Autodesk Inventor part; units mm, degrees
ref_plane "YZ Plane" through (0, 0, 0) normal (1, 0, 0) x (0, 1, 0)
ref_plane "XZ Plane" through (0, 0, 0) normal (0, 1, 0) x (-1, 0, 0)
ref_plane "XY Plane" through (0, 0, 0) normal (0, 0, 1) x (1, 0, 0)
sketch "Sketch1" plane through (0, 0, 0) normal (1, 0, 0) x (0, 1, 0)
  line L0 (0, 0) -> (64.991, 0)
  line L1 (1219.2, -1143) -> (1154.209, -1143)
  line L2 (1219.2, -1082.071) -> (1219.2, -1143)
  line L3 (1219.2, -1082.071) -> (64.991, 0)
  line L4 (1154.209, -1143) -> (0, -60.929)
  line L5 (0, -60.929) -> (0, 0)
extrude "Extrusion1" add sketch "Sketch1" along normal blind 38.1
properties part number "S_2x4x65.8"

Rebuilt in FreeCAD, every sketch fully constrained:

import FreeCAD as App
import Part
import Sketcher
Q = App.Units.Quantity

doc = App.newDocument("Part")
body = doc.addObject("PartDesign::Body", "Body")

# Sketch on YZ plane
sketch1 = body.newObject("Sketcher::SketchObject", "Sketch")
sketch1.AttachmentSupport = (doc.getObject("YZ_Plane"), [""])
sketch1.MapMode = "FlatFace"
sketch1.addGeometry([
    Part.LineSegment(App.Vector(64.991, 0, 0), App.Vector(0, 0, 0)),  # 0
    Part.LineSegment(App.Vector(0, 0, 0), App.Vector(0, -60.929, 0)),  # 1
    Part.LineSegment(App.Vector(0, -60.929, 0), App.Vector(1154.209, -1143, 0)),  # 2
    Part.LineSegment(App.Vector(1154.209, -1143, 0), App.Vector(1219.2, -1143, 0)),  # 3
    Part.LineSegment(App.Vector(1219.2, -1143, 0), App.Vector(1219.2, -1082.071, 0)),  # 4
    Part.LineSegment(App.Vector(1219.2, -1082.071, 0), App.Vector(64.991, 0, 0)),  # 5
], False)
sketch1.addConstraint([
    Sketcher.Constraint("Coincident", 0, 2, 1, 1),
    Sketcher.Constraint("Coincident", 1, 2, 2, 1),
    Sketcher.Constraint("Coincident", 2, 2, 3, 1),
    Sketcher.Constraint("Coincident", 3, 2, 4, 1),
    Sketcher.Constraint("Coincident", 4, 2, 5, 1),
    Sketcher.Constraint("Coincident", 5, 2, 0, 1),
    Sketcher.Constraint("Horizontal", 0),
    Sketcher.Constraint("Vertical", 1),
    Sketcher.Constraint("Horizontal", 3),
    Sketcher.Constraint("Vertical", 4),
    Sketcher.Constraint("Coincident", 0, 2, -1, 1),
    Sketcher.Constraint("Parallel", 2, 5),
    Sketcher.Constraint("Equal", 0, 3),
    Sketcher.Constraint("DistanceY", 2, 2, -1, 1, Q("45 in")),
    Sketcher.Constraint("DistanceX", -1, 1, 3, 2, Q("48 in")),
    Sketcher.Constraint("DistanceX", 0, 2, 0, 1, Q("2.5587 in")),
    Sketcher.Constraint("DistanceY", 1, 2, 1, 1, Q("60.929 mm")),
])
pad1 = body.newObject("PartDesign::Pad", "Pad")
pad1.Profile = sketch1
pad1.Length = Q("1.5 in")

doc.recompute()
